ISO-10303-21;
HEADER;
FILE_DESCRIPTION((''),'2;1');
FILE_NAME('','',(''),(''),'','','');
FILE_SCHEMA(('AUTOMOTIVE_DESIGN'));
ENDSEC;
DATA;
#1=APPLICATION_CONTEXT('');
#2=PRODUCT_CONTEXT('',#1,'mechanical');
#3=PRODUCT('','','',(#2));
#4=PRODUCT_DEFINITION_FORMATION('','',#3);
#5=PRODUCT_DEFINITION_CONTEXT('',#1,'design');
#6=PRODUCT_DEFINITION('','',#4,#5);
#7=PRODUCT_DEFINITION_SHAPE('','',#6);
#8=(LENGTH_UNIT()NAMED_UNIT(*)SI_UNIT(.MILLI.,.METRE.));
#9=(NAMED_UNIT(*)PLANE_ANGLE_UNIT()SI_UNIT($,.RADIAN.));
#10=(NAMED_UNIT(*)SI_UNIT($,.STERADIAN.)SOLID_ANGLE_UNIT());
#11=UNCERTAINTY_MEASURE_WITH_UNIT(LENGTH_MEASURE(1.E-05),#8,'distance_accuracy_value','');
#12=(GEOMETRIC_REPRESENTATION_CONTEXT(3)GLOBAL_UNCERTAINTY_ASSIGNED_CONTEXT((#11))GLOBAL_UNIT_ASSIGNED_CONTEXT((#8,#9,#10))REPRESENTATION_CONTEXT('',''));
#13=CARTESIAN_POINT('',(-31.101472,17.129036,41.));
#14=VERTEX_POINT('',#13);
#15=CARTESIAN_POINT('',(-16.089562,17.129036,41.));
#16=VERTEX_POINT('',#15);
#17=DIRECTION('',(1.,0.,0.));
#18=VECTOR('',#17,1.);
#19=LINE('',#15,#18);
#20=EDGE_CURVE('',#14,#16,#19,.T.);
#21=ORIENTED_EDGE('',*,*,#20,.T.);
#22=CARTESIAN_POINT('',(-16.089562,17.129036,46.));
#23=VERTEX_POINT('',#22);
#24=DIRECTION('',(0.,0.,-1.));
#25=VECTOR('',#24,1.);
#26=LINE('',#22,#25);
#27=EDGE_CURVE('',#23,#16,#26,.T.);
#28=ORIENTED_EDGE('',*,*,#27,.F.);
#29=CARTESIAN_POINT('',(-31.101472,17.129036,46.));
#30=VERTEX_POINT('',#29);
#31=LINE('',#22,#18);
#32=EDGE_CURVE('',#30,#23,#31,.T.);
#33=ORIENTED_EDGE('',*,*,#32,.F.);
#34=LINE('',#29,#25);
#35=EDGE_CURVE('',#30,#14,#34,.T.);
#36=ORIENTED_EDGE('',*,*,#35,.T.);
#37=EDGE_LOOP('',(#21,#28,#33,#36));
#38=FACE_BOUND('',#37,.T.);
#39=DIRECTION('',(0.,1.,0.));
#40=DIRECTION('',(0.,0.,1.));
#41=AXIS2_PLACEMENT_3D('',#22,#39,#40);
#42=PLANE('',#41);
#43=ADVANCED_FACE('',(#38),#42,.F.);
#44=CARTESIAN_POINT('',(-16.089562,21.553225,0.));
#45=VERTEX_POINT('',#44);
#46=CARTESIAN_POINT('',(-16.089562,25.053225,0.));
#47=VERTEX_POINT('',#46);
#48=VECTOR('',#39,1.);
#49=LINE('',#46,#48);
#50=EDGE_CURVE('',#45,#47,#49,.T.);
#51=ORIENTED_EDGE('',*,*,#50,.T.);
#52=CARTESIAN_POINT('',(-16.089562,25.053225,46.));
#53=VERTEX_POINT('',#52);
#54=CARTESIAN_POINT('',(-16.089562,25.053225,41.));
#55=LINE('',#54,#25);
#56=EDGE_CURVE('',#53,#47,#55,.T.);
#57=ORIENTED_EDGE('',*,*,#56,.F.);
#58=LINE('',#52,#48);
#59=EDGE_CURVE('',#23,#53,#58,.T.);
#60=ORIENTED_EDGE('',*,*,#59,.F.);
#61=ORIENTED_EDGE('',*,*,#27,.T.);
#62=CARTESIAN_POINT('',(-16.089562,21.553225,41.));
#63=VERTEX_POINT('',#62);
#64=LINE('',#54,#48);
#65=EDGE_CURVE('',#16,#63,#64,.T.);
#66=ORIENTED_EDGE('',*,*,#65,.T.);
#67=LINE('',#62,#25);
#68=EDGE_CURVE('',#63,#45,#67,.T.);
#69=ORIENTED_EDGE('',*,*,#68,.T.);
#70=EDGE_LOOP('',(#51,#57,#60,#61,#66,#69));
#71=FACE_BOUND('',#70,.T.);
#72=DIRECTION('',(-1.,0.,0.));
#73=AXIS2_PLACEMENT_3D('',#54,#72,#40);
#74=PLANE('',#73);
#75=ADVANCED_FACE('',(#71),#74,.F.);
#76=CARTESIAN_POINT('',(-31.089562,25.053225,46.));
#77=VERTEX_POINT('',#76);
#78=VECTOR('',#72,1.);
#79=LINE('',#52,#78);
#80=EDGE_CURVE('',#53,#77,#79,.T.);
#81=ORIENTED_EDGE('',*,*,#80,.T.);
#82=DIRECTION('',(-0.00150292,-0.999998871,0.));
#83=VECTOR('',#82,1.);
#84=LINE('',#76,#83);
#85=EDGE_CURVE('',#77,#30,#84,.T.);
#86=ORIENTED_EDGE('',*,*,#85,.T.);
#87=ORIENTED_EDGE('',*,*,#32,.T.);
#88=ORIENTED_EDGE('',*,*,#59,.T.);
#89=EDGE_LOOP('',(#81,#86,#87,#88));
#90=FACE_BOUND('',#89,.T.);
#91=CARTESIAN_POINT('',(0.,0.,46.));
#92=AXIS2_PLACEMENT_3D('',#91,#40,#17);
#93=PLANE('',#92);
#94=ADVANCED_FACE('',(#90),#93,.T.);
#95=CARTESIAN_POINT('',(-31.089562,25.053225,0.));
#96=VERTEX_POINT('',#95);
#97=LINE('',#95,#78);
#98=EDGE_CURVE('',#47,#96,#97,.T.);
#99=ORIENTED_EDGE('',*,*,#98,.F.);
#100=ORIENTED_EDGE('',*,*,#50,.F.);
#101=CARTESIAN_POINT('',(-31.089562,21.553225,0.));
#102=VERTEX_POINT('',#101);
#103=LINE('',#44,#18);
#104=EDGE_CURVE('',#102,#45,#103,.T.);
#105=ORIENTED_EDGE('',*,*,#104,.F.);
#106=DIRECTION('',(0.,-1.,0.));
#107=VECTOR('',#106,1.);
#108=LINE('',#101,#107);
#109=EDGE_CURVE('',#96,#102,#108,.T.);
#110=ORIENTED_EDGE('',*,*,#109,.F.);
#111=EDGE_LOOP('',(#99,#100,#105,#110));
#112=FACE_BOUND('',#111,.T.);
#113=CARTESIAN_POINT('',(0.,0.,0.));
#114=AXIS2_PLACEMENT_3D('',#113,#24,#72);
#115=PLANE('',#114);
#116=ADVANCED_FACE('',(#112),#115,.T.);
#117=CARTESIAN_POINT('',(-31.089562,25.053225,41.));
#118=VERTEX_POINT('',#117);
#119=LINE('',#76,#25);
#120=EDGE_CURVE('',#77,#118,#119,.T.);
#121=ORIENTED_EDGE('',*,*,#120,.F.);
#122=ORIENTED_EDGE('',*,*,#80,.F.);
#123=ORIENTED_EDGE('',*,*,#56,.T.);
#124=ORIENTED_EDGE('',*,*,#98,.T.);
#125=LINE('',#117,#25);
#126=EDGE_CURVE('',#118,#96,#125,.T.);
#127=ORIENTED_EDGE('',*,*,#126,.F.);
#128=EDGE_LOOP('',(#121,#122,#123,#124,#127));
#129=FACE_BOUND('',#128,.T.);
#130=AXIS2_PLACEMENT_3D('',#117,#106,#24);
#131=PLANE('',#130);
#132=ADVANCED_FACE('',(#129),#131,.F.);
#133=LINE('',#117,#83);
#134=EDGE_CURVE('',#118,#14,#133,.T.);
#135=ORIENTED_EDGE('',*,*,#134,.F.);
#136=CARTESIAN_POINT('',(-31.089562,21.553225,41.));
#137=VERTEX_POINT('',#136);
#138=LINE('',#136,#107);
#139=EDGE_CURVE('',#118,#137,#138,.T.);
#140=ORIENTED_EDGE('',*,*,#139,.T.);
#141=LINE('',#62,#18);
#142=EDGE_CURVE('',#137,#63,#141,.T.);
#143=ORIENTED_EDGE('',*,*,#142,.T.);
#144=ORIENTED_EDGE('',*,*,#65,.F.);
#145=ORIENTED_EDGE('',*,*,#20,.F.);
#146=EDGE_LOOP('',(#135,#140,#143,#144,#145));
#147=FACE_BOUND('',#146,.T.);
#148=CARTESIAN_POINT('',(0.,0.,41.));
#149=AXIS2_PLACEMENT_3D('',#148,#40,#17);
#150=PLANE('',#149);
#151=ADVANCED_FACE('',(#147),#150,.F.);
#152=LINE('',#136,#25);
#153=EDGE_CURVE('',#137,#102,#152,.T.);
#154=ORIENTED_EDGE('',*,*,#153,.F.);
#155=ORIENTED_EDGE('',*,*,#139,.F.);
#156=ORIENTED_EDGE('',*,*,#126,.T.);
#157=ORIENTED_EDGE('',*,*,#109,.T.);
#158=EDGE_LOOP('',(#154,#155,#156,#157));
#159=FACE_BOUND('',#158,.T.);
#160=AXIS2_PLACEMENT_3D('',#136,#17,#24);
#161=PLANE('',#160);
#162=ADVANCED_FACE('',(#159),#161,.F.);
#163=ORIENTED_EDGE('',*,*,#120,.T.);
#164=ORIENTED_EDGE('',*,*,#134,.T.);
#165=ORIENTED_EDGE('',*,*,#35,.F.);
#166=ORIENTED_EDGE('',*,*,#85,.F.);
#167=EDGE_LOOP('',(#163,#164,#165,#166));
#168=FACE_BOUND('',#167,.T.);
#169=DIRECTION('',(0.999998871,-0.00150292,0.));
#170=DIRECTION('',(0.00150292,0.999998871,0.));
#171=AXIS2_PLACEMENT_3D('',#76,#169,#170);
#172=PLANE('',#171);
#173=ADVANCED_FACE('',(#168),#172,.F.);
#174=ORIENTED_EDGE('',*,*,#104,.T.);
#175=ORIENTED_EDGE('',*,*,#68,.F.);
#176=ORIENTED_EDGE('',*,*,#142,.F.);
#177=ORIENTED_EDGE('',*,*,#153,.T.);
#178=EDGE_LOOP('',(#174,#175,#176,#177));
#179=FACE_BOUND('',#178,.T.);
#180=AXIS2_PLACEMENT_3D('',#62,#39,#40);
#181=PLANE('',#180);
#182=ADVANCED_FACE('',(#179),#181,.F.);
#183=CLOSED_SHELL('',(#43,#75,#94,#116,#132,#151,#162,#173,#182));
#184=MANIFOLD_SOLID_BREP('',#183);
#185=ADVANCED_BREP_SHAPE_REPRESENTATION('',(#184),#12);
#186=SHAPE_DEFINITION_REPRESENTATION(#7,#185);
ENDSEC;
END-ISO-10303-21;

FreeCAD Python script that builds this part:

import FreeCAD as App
import Part
import Sketcher

V = App.Vector

doc = App.newDocument("Part")
params = doc.addObject("Spreadsheet::Sheet", "Params")
for row, (alias, value) in enumerate([
    ("sketch1_width", "15 mm"),
    ("sketch1_height", "3.5 mm"),
    ("pad1_length", "41 mm"),
    ("sketch2_width", "15 mm"),
    ("pad2_length", "5 mm"),
], start=1):
    params.set(f"A{row}", alias)
    params.set(f"B{row}", "=" + value)
    params.setAlias(f"B{row}", alias)

body = doc.addObject("PartDesign::Body", "Body")

# Sketch on XY plane
sketch1 = doc.addObject("Sketcher::SketchObject", "Sketch")
body.addObject(sketch1)
sketch1.AttachmentSupport = (doc.XY_Plane, [""])
sketch1.MapMode = "FlatFace"
sketch1.addGeometry([
    Part.LineSegment(V(-31.1, 25.1, 0), V(-31.1, 21.6, 0)),
    Part.LineSegment(V(-31.1, 21.6, 0), V(-16.1, 21.6, 0)),
    Part.LineSegment(V(-16.1, 21.6, 0), V(-16.1, 25.1, 0)),
    Part.LineSegment(V(-16.1, 25.1, 0), V(-31.1, 25.1, 0)),
], False)
sketch1.addConstraint([
    Sketcher.Constraint("Coincident", 0, 2, 1, 1),
    Sketcher.Constraint("Coincident", 1, 2, 2, 1),
    Sketcher.Constraint("Coincident", 2, 2, 3, 1),
    Sketcher.Constraint("Coincident", 3, 2, 0, 1),
    Sketcher.Constraint("Vertical", 0),
    Sketcher.Constraint("Horizontal", 1),
    Sketcher.Constraint("Vertical", 2),
    Sketcher.Constraint("Horizontal", 3),
    Sketcher.Constraint("DistanceX", 1, 1, 1, 2, 15.0),
    Sketcher.Constraint("DistanceY", 0, 2, 0, 1, 3.5),
    Sketcher.Constraint("DistanceX", 0, 2, -1, 1, 31.089562),
    Sketcher.Constraint("DistanceY", -1, 1, 0, 2, 21.553225),
])
sketch1.setExpression("Constraints[8]", "Params.sketch1_width")
sketch1.setExpression("Constraints[9]", "Params.sketch1_height")
pad1 = doc.addObject("PartDesign::Pad", "Pad")
body.addObject(pad1)
pad1.Profile = sketch1
pad1.setExpression("Length", "Params.pad1_length")

# Sketch on XY plane
sketch2 = doc.addObject("Sketcher::SketchObject", "Sketch001")
body.addObject(sketch2)
sketch2.AttachmentSupport = (doc.XY_Plane, [""])
sketch2.MapMode = "FlatFace"
sketch2.AttachmentOffset = App.Placement(V(0, 0, 41), App.Rotation())
sketch2.addGeometry([
    Part.LineSegment(V(-31, 25, 0), V(-31, 17, 0)),
    Part.LineSegment(V(-31, 17, 0), V(-16, 17, 0)),
    Part.LineSegment(V(-16, 17, 0), V(-16, 25, 0)),
    Part.LineSegment(V(-16, 25, 0), V(-31, 25, 0)),
], False)
sketch2.addConstraint([
    Sketcher.Constraint("Coincident", 0, 2, 1, 1),
    Sketcher.Constraint("Coincident", 1, 2, 2, 1),
    Sketcher.Constraint("Coincident", 2, 2, 3, 1),
    Sketcher.Constraint("Coincident", 3, 2, 0, 1),
    Sketcher.Constraint("Horizontal", 1),
    Sketcher.Constraint("Vertical", 2),
    Sketcher.Constraint("Horizontal", 3),
    Sketcher.Constraint("DistanceX", 3, 2, 3, 1, 15.0),
    Sketcher.Constraint("DistanceX", 1, 1, 1, 2, 15.011909),
    Sketcher.Constraint("DistanceY", 2, 1, 2, 2, 7.924189),
    Sketcher.Constraint("DistanceX", 0, 2, -1, 1, 31.101472),
    Sketcher.Constraint("DistanceY", -1, 1, 0, 2, 17.129036),
])
sketch2.setExpression("Constraints[7]", "Params.sketch2_width")
pad2 = doc.addObject("PartDesign::Pad", "Pad001")
body.addObject(pad2)
pad2.Profile = sketch2
pad2.setExpression("Length", "Params.pad2_length")

doc.recompute()
